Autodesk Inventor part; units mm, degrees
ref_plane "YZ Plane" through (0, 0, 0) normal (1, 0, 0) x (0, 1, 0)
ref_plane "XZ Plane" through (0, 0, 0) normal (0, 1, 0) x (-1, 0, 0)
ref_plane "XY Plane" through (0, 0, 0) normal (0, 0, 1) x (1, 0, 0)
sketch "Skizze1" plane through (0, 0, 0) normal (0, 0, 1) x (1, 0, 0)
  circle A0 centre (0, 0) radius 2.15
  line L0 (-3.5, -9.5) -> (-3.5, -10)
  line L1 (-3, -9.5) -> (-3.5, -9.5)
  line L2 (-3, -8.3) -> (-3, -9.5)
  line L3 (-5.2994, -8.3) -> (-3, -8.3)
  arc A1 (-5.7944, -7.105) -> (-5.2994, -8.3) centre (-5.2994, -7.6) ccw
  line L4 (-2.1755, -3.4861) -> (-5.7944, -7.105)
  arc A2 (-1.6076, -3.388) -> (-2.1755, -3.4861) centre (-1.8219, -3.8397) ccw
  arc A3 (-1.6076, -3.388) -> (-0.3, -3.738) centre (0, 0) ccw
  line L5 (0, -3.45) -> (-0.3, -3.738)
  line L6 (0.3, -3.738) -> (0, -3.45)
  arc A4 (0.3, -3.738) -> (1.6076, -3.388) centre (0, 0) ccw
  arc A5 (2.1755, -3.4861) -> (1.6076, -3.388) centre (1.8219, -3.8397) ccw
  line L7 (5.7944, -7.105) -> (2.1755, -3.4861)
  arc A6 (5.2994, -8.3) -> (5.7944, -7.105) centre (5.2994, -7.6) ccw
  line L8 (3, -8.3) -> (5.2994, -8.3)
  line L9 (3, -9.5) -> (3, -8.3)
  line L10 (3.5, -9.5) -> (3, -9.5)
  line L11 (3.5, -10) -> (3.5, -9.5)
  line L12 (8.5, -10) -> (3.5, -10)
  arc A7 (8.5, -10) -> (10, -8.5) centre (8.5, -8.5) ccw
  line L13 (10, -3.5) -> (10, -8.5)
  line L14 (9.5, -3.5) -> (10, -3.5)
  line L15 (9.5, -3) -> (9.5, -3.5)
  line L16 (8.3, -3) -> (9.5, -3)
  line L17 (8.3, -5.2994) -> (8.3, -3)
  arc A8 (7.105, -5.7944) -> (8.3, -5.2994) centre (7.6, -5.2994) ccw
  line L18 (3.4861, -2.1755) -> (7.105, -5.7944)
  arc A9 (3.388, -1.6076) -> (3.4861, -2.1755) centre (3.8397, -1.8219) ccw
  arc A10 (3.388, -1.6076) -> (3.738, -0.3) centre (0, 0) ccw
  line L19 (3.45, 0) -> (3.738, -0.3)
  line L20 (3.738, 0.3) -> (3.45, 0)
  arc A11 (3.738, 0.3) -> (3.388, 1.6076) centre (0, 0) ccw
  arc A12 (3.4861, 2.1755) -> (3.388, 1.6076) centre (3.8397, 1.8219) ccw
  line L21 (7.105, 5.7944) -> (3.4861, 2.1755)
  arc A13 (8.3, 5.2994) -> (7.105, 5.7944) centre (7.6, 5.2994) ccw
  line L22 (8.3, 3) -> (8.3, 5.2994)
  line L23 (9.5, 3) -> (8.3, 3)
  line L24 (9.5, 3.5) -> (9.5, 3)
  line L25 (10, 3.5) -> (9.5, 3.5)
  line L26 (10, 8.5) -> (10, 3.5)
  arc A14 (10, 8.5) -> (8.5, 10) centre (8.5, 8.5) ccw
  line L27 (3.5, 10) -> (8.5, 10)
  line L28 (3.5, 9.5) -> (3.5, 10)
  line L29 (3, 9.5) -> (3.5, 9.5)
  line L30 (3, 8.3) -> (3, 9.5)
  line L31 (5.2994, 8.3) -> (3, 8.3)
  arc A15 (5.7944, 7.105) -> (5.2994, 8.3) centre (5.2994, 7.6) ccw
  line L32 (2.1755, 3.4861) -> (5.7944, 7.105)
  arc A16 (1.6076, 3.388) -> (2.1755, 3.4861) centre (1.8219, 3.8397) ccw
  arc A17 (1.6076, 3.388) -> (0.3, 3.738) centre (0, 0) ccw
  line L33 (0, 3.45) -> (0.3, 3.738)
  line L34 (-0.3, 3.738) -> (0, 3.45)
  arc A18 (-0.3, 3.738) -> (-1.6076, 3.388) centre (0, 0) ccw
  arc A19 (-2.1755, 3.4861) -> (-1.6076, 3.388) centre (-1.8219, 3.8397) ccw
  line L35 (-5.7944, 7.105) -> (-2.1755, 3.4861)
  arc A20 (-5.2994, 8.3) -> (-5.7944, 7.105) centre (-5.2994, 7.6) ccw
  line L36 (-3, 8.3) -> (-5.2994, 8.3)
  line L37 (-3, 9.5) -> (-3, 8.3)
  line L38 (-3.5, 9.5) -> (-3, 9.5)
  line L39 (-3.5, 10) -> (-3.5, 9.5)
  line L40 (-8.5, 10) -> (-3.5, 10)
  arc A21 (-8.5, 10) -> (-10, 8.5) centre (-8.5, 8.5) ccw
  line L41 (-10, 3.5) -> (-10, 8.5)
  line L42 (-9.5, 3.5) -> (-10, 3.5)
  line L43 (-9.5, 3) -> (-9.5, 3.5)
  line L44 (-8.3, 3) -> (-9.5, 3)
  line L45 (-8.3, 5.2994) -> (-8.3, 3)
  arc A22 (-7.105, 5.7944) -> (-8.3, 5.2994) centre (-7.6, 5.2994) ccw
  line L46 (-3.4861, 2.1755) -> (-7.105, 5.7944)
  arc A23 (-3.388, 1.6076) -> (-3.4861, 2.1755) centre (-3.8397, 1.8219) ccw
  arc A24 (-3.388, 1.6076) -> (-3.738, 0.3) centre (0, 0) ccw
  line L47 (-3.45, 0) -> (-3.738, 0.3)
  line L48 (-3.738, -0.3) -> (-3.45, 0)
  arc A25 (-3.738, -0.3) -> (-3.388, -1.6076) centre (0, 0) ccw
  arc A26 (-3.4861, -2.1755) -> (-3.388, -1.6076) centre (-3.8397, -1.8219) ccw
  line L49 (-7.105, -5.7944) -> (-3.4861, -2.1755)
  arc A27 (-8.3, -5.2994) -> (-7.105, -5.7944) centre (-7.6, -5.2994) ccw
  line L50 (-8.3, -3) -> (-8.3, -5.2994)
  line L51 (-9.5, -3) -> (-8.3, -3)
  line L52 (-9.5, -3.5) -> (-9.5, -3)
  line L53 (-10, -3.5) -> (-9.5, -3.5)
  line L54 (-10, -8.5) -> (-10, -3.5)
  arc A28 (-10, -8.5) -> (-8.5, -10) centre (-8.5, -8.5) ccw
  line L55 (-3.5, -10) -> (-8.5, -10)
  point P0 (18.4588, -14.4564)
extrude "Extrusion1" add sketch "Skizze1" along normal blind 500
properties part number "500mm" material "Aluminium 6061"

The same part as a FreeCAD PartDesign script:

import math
import FreeCAD as App
import Part
import Sketcher

V = App.Vector
Q = App.Units.Quantity

doc = App.newDocument("Part")
body = doc.addObject("PartDesign::Body", "Body")

# Sketch on XY plane
sketch1 = body.newObject("Sketcher::SketchObject", "Sketch")
sketch1.AttachmentSupport = (doc.getObject("XY_Plane"), [""])
sketch1.MapMode = "FlatFace"
sketch1.addGeometry([
    Part.LineSegment(V(-3.5, -10, 0), V(-3.5, -9.5, 0)),  # 0
    Part.LineSegment(V(-3.5, -9.5, 0), V(-3, -9.5, 0)),  # 1
    Part.LineSegment(V(-3, -9.5, 0), V(-3, -8.3, 0)),  # 2
    Part.LineSegment(V(-3, -8.3, 0), V(-5.2994, -8.3, 0)),  # 3
    Part.ArcOfCircle(Part.Circle(V(-5.2994, -7.6, 0), V(0, 0, 1), 0.700036), math.radians(135), math.radians(270)),  # 4
    Part.LineSegment(V(-5.7944, -7.105, 0), V(-2.1755, -3.4861, 0)),  # 5
    Part.ArcOfCircle(Part.Circle(V(-1.8219, -3.8397, 0), V(0, 0, 1), 0.499957), math.radians(64.618937), math.radians(135)),  # 6
    Part.ArcOfCircle(Part.Circle(V(-0.000391, -0.001062, 0), V(0, 0, 1), 3.748929), math.radians(-115.385824), math.radians(-94.583891)),  # 7
    Part.LineSegment(V(-0.3, -3.738, 0), V(0, -3.45, 0)),  # 8
    Part.LineSegment(V(0, -3.45, 0), V(0.3, -3.738, 0)),  # 9
    Part.ArcOfCircle(Part.Circle(V(-0.000193, 0.001116, 0), V(0, 0, 1), 3.751147), math.radians(-85.40989), math.radians(-64.620395)),  # 10
    Part.ArcOfCircle(Part.Circle(V(1.8219, -3.8397, 0), V(0, 0, 1), 0.500066), math.radians(45), math.radians(115.381063)),  # 11
    Part.LineSegment(V(2.1755, -3.4861, 0), V(5.7944, -7.105, 0)),  # 12
    Part.ArcOfCircle(Part.Circle(V(5.2994, -7.6, 0), V(0, 0, 1), 0.7), math.radians(-90), math.radians(45)),  # 13
    Part.LineSegment(V(5.2994, -8.3, 0), V(3, -8.3, 0)),  # 14
    Part.LineSegment(V(3, -8.3, 0), V(3, -9.5, 0)),  # 15
    Part.LineSegment(V(3, -9.5, 0), V(3.5, -9.5, 0)),  # 16
    Part.LineSegment(V(3.5, -9.5, 0), V(3.5, -10, 0)),  # 17
    Part.LineSegment(V(3.5, -10, 0), V(8.5, -10, 0)),  # 18
    Part.ArcOfCircle(Part.Circle(V(8.5, -8.5, 0), V(0, 0, 1), 1.5), math.radians(-90), math.radians(0)),  # 19
    Part.LineSegment(V(10, -8.5, 0), V(10, -3.5, 0)),  # 20
    Part.LineSegment(V(10, -3.5, 0), V(9.5, -3.5, 0)),  # 21
    Part.LineSegment(V(9.5, -3.5, 0), V(9.5, -3, 0)),  # 22
    Part.LineSegment(V(9.5, -3, 0), V(8.3, -3, 0)),  # 23
    Part.LineSegment(V(8.3, -3, 0), V(8.3, -5.2994, 0)),  # 24
    Part.ArcOfCircle(Part.Circle(V(7.6, -5.2994, 0), V(0, 0, 1), 0.700036), math.radians(-135), math.radians(0)),  # 25
    Part.LineSegment(V(7.105, -5.7944, 0), V(3.4861, -2.1755, 0)),  # 26
    Part.ArcOfCircle(Part.Circle(V(3.8397, -1.8219, 0), V(0, 0, 1), 0.499957), math.radians(154.618937), math.radians(225)),  # 27
    Part.ArcOfCircle(Part.Circle(V(0.001062, -0.000391, 0), V(0, 0, 1), 3.748929), math.radians(-25.385824), math.radians(-4.583891)),  # 28
    Part.LineSegment(V(3.738, -0.3, 0), V(3.45, 0, 0)),  # 29
    Part.LineSegment(V(3.45, 0, 0), V(3.738, 0.3, 0)),  # 30
    Part.ArcOfCircle(Part.Circle(V(-0.001116, -0.000193, 0), V(0, 0, 1), 3.751147), math.radians(4.59011), math.radians(25.379605)),  # 31
    Part.ArcOfCircle(Part.Circle(V(3.8397, 1.8219, 0), V(0, 0, 1), 0.500066), math.radians(135), math.radians(205.381063)),  # 32
    Part.LineSegment(V(3.4861, 2.1755, 0), V(7.105, 5.7944, 0)),  # 33
    Part.ArcOfCircle(Part.Circle(V(7.6, 5.2994, 0), V(0, 0, 1), 0.7), math.radians(0), math.radians(135)),  # 34
    Part.LineSegment(V(8.3, 5.2994, 0), V(8.3, 3, 0)),  # 35
    Part.LineSegment(V(8.3, 3, 0), V(9.5, 3, 0)),  # 36
    Part.LineSegment(V(9.5, 3, 0), V(9.5, 3.5, 0)),  # 37
    Part.LineSegment(V(9.5, 3.5, 0), V(10, 3.5, 0)),  # 38
    Part.LineSegment(V(10, 3.5, 0), V(10, 8.5, 0)),  # 39
    Part.ArcOfCircle(Part.Circle(V(8.5, 8.5, 0), V(0, 0, 1), 1.5), math.radians(0), math.radians(90)),  # 40
    Part.LineSegment(V(8.5, 10, 0), V(3.5, 10, 0)),  # 41
    Part.LineSegment(V(3.5, 10, 0), V(3.5, 9.5, 0)),  # 42
    Part.LineSegment(V(3.5, 9.5, 0), V(3, 9.5, 0)),  # 43
    Part.LineSegment(V(3, 9.5, 0), V(3, 8.3, 0)),  # 44
    Part.LineSegment(V(3, 8.3, 0), V(5.2994, 8.3, 0)),  # 45
    Part.ArcOfCircle(Part.Circle(V(5.2994, 7.6, 0), V(0, 0, 1), 0.700036), math.radians(-45), math.radians(90)),  # 46
    Part.LineSegment(V(5.7944, 7.105, 0), V(2.1755, 3.4861, 0)),  # 47
    Part.ArcOfCircle(Part.Circle(V(1.8219, 3.8397, 0), V(0, 0, 1), 0.499957), math.radians(-115.381063), math.radians(-45)),  # 48
    Part.ArcOfCircle(Part.Circle(V(0.000391, 0.001062, 0), V(0, 0, 1), 3.748929), math.radians(64.614176), math.radians(85.416109)),  # 49
    Part.LineSegment(V(0.3, 3.738, 0), V(0, 3.45, 0)),  # 50
    Part.LineSegment(V(0, 3.45, 0), V(-0.3, 3.738, 0)),  # 51
    Part.ArcOfCircle(Part.Circle(V(0.000193, -0.001116, 0), V(0, 0, 1), 3.751147), math.radians(94.59011), math.radians(115.379605)),  # 52
    Part.ArcOfCircle(Part.Circle(V(-1.8219, 3.8397, 0), V(0, 0, 1), 0.500066), math.radians(-135), math.radians(-64.618937)),  # 53
    Part.LineSegment(V(-2.1755, 3.4861, 0), V(-5.7944, 7.105, 0)),  # 54
    Part.ArcOfCircle(Part.Circle(V(-5.2994, 7.6, 0), V(0, 0, 1), 0.7), math.radians(90), math.radians(225)),  # 55
    Part.LineSegment(V(-5.2994, 8.3, 0), V(-3, 8.3, 0)),  # 56
    Part.LineSegment(V(-3, 8.3, 0), V(-3, 9.5, 0)),  # 57
    Part.LineSegment(V(-3, 9.5, 0), V(-3.5, 9.5, 0)),  # 58
    Part.LineSegment(V(-3.5, 9.5, 0), V(-3.5, 10, 0)),  # 59
    Part.LineSegment(V(-3.5, 10, 0), V(-8.5, 10, 0)),  # 60
    Part.ArcOfCircle(Part.Circle(V(-8.5, 8.5, 0), V(0, 0, 1), 1.5), math.radians(90), math.radians(180)),  # 61
    Part.LineSegment(V(-10, 8.5, 0), V(-10, 3.5, 0)),  # 62
    Part.LineSegment(V(-10, 3.5, 0), V(-9.5, 3.5, 0)),  # 63
    Part.LineSegment(V(-9.5, 3.5, 0), V(-9.5, 3, 0)),  # 64
    Part.LineSegment(V(-9.5, 3, 0), V(-8.3, 3, 0)),  # 65
    Part.LineSegment(V(-8.3, 3, 0), V(-8.3, 5.2994, 0)),  # 66
    Part.ArcOfCircle(Part.Circle(V(-7.6, 5.2994, 0), V(0, 0, 1), 0.700036), math.radians(45), math.radians(180)),  # 67
    Part.LineSegment(V(-7.105, 5.7944, 0), V(-3.4861, 2.1755, 0)),  # 68
    Part.ArcOfCircle(Part.Circle(V(-3.8397, 1.8219, 0), V(0, 0, 1), 0.499957), math.radians(-25.381063), math.radians(45)),  # 69
    Part.ArcOfCircle(Part.Circle(V(-0.001062, 0.000391, 0), V(0, 0, 1), 3.748929), math.radians(154.614176), math.radians(175.416109)),  # 70
    Part.LineSegment(V(-3.738, 0.3, 0), V(-3.45, 0, 0)),  # 71
    Part.LineSegment(V(-3.45, 0, 0), V(-3.738, -0.3, 0)),  # 72
    Part.ArcOfCircle(Part.Circle(V(0.001116, 0.000193, 0), V(0, 0, 1), 3.751147), math.radians(-175.40989), math.radians(-154.620395)),  # 73
    Part.ArcOfCircle(Part.Circle(V(-3.8397, -1.8219, 0), V(0, 0, 1), 0.500066), math.radians(-45), math.radians(25.381063)),  # 74
    Part.LineSegment(V(-3.4861, -2.1755, 0), V(-7.105, -5.7944, 0)),  # 75
    Part.ArcOfCircle(Part.Circle(V(-7.6, -5.2994, 0), V(0, 0, 1), 0.7), math.radians(180), math.radians(315)),  # 76
    Part.LineSegment(V(-8.3, -5.2994, 0), V(-8.3, -3, 0)),  # 77
    Part.LineSegment(V(-8.3, -3, 0), V(-9.5, -3, 0)),  # 78
    Part.LineSegment(V(-9.5, -3, 0), V(-9.5, -3.5, 0)),  # 79
    Part.LineSegment(V(-9.5, -3.5, 0), V(-10, -3.5, 0)),  # 80
    Part.LineSegment(V(-10, -3.5, 0), V(-10, -8.5, 0)),  # 81
    Part.ArcOfCircle(Part.Circle(V(-8.5, -8.5, 0), V(0, 0, 1), 1.5), math.radians(180), math.radians(270)),  # 82
    Part.LineSegment(V(-8.5, -10, 0), V(-3.5, -10, 0)),  # 83
    Part.Circle(V(0, 0, 0), V(0, 0, 1), 2.15),  # 84
], False)
sketch1.addConstraint([
    Sketcher.Constraint("Coincident", 0, 2, 1, 1),
    Sketcher.Constraint("Coincident", 1, 2, 2, 1),
    Sketcher.Constraint("Coincident", 2, 2, 3, 1),
    Sketcher.Constraint("Coincident", 3, 2, 4, 2),
    Sketcher.Constraint("Coincident", 4, 1, 5, 1),
    Sketcher.Constraint("Coincident", 5, 2, 6, 2),
    Sketcher.Constraint("Coincident", 6, 1, 7, 1),
    Sketcher.Constraint("Coincident", 7, 2, 8, 1),
    Sketcher.Constraint("Coincident", 8, 2, 9, 1),
    Sketcher.Constraint("Coincident", 9, 2, 10, 1),
    Sketcher.Constraint("Coincident", 10, 2, 11, 2),
    Sketcher.Constraint("Coincident", 11, 1, 12, 1),
    Sketcher.Constraint("Coincident", 12, 2, 13, 2),
    Sketcher.Constraint("Coincident", 13, 1, 14, 1),
    Sketcher.Constraint("Coincident", 14, 2, 15, 1),
    Sketcher.Constraint("Coincident", 15, 2, 16, 1),
    Sketcher.Constraint("Coincident", 16, 2, 17, 1),
    Sketcher.Constraint("Coincident", 17, 2, 18, 1),
    Sketcher.Constraint("Coincident", 18, 2, 19, 1),
    Sketcher.Constraint("Coincident", 19, 2, 20, 1),
    Sketcher.Constraint("Coincident", 20, 2, 21, 1),
    Sketcher.Constraint("Coincident", 21, 2, 22, 1),
    Sketcher.Constraint("Coincident", 22, 2, 23, 1),
    Sketcher.Constraint("Coincident", 23, 2, 24, 1),
    Sketcher.Constraint("Coincident", 24, 2, 25, 2),
    Sketcher.Constraint("Coincident", 25, 1, 26, 1),
    Sketcher.Constraint("Coincident", 26, 2, 27, 2),
    Sketcher.Constraint("Coincident", 27, 1, 28, 1),
    Sketcher.Constraint("Coincident", 28, 2, 29, 1),
    Sketcher.Constraint("Coincident", 29, 2, 30, 1),
    Sketcher.Constraint("Coincident", 30, 2, 31, 1),
    Sketcher.Constraint("Coincident", 31, 2, 32, 2),
    Sketcher.Constraint("Coincident", 32, 1, 33, 1),
    Sketcher.Constraint("Coincident", 33, 2, 34, 2),
    Sketcher.Constraint("Coincident", 34, 1, 35, 1),
    Sketcher.Constraint("Coincident", 35, 2, 36, 1),
    Sketcher.Constraint("Coincident", 36, 2, 37, 1),
    Sketcher.Constraint("Coincident", 37, 2, 38, 1),
    Sketcher.Constraint("Coincident", 38, 2, 39, 1),
    Sketcher.Constraint("Coincident", 39, 2, 40, 1),
    Sketcher.Constraint("Coincident", 40, 2, 41, 1),
    Sketcher.Constraint("Coincident", 41, 2, 42, 1),
    Sketcher.Constraint("Coincident", 42, 2, 43, 1),
    Sketcher.Constraint("Coincident", 43, 2, 44, 1),
    Sketcher.Constraint("Coincident", 44, 2, 45, 1),
    Sketcher.Constraint("Coincident", 45, 2, 46, 2),
    Sketcher.Constraint("Coincident", 46, 1, 47, 1),
    Sketcher.Constraint("Coincident", 47, 2, 48, 2),
    Sketcher.Constraint("Coincident", 48, 1, 49, 1),
    Sketcher.Constraint("Coincident", 49, 2, 50, 1),
    Sketcher.Constraint("Coincident", 50, 2, 51, 1),
    Sketcher.Constraint("Coincident", 51, 2, 52, 1),
    Sketcher.Constraint("Coincident", 52, 2, 53, 2),
    Sketcher.Constraint("Coincident", 53, 1, 54, 1),
    Sketcher.Constraint("Coincident", 54, 2, 55, 2),
    Sketcher.Constraint("Coincident", 55, 1, 56, 1),
    Sketcher.Constraint("Coincident", 56, 2, 57, 1),
    Sketcher.Constraint("Coincident", 57, 2, 58, 1),
    Sketcher.Constraint("Coincident", 58, 2, 59, 1),
    Sketcher.Constraint("Coincident", 59, 2, 60, 1),
    Sketcher.Constraint("Coincident", 60, 2, 61, 1),
    Sketcher.Constraint("Coincident", 61, 2, 62, 1),
    Sketcher.Constraint("Coincident", 62, 2, 63, 1),
    Sketcher.Constraint("Coincident", 63, 2, 64, 1),
    Sketcher.Constraint("Coincident", 64, 2, 65, 1),
    Sketcher.Constraint("Coincident", 65, 2, 66, 1),
    Sketcher.Constraint("Coincident", 66, 2, 67, 2),
    Sketcher.Constraint("Coincident", 67, 1, 68, 1),
    Sketcher.Constraint("Coincident", 68, 2, 69, 2),
    Sketcher.Constraint("Coincident", 69, 1, 70, 1),
    Sketcher.Constraint("Coincident", 70, 2, 71, 1),
    Sketcher.Constraint("Coincident", 71, 2, 72, 1),
    Sketcher.Constraint("Coincident", 72, 2, 73, 1),
    Sketcher.Constraint("Coincident", 73, 2, 74, 2),
    Sketcher.Constraint("Coincident", 74, 1, 75, 1),
    Sketcher.Constraint("Coincident", 75, 2, 76, 2),
    Sketcher.Constraint("Coincident", 76, 1, 77, 1),
    Sketcher.Constraint("Coincident", 77, 2, 78, 1),
    Sketcher.Constraint("Coincident", 78, 2, 79, 1),
    Sketcher.Constraint("Coincident", 79, 2, 80, 1),
    Sketcher.Constraint("Coincident", 80, 2, 81, 1),
    Sketcher.Constraint("Coincident", 81, 2, 82, 1),
    Sketcher.Constraint("Coincident", 82, 2, 83, 1),
    Sketcher.Constraint("Coincident", 83, 2, 0, 1),
    Sketcher.Constraint("Vertical", 0),
    Sketcher.Constraint("Horizontal", 1),
    Sketcher.Constraint("Vertical", 2),
    Sketcher.Constraint("Horizontal", 3),
    Sketcher.Constraint("Horizontal", 14),
    Sketcher.Constraint("Vertical", 15),
    Sketcher.Constraint("Horizontal", 16),
    Sketcher.Constraint("Vertical", 17),
    Sketcher.Constraint("Horizontal", 18),
    Sketcher.Constraint("Vertical", 20),
    Sketcher.Constraint("Horizontal", 21),
    Sketcher.Constraint("Vertical", 22),
    Sketcher.Constraint("Horizontal", 23),
    Sketcher.Constraint("Vertical", 24),
    Sketcher.Constraint("Vertical", 35),
    Sketcher.Constraint("Horizontal", 36),
    Sketcher.Constraint("Vertical", 37),
    Sketcher.Constraint("Horizontal", 38),
    Sketcher.Constraint("Vertical", 39),
    Sketcher.Constraint("Horizontal", 41),
    Sketcher.Constraint("Vertical", 42),
    Sketcher.Constraint("Horizontal", 43),
    Sketcher.Constraint("Vertical", 44),
    Sketcher.Constraint("Horizontal", 45),
    Sketcher.Constraint("Horizontal", 56),
    Sketcher.Constraint("Vertical", 57),
    Sketcher.Constraint("Horizontal", 58),
    Sketcher.Constraint("Vertical", 59),
    Sketcher.Constraint("Horizontal", 60),
    Sketcher.Constraint("Vertical", 62),
    Sketcher.Constraint("Horizontal", 63),
    Sketcher.Constraint("Vertical", 64),
    Sketcher.Constraint("Horizontal", 65),
    Sketcher.Constraint("Vertical", 66),
    Sketcher.Constraint("Vertical", 77),
    Sketcher.Constraint("Horizontal", 78),
    Sketcher.Constraint("Vertical", 79),
    Sketcher.Constraint("Horizontal", 80),
    Sketcher.Constraint("Vertical", 81),
    Sketcher.Constraint("Horizontal", 83),
    Sketcher.Constraint("Coincident", 84, 3, -1, 1),
    Sketcher.Constraint("PointOnObject", 10, 3, -2),
    Sketcher.Constraint("PointOnObject", 31, 3, -1),
    Sketcher.Constraint("PointOnObject", 52, 3, -2),
    Sketcher.Constraint("PointOnObject", 73, 3, -1),
    Sketcher.Constraint("PointOnObject", 8, 2, -2),
    Sketcher.Constraint("PointOnObject", 29, 2, -1),
    Sketcher.Constraint("PointOnObject", 50, 2, -2),
    Sketcher.Constraint("PointOnObject", 71, 2, -1),
    Sketcher.Constraint("Diameter", 84, Q("4.3 mm")),
    Sketcher.Constraint("Radius", 4, Q("0.7 mm")),
    Sketcher.Constraint("Radius", 6, Q("0.5 mm")),
    Sketcher.Constraint("Radius", 11, Q("0.5 mm")),
    Sketcher.Constraint("Radius", 13, Q("0.7 mm")),
    Sketcher.Constraint("Radius", 19, Q("1.5 mm")),
    Sketcher.Constraint("Radius", 25, Q("0.7 mm")),
    Sketcher.Constraint("Radius", 27, Q("0.5 mm")),
    Sketcher.Constraint("Radius", 32, Q("0.5 mm")),
    Sketcher.Constraint("Radius", 34, Q("0.7 mm")),
    Sketcher.Constraint("Radius", 40, Q("1.5 mm")),
    Sketcher.Constraint("Radius", 46, Q("0.7 mm")),
    Sketcher.Constraint("Radius", 48, Q("0.5 mm")),
    Sketcher.Constraint("Radius", 53, Q("0.5 mm")),
    Sketcher.Constraint("Radius", 55, Q("0.7 mm")),
    Sketcher.Constraint("Radius", 61, Q("1.5 mm")),
    Sketcher.Constraint("Radius", 67, Q("0.7 mm")),
    Sketcher.Constraint("Radius", 69, Q("0.5 mm")),
    Sketcher.Constraint("Radius", 74, Q("0.5 mm")),
    Sketcher.Constraint("Radius", 76, Q("0.7 mm")),
    Sketcher.Constraint("Radius", 82, Q("1.5 mm")),
    Sketcher.Constraint("DistanceX", 18, 1, 18, 2, Q("5 mm")),
    Sketcher.Constraint("DistanceX", 41, 2, 41, 1, Q("5 mm")),
    Sketcher.Constraint("DistanceX", 60, 2, 60, 1, Q("5 mm")),
    Sketcher.Constraint("DistanceX", 83, 1, 83, 2, Q("5 mm")),
    Sketcher.Constraint("DistanceY", 20, 1, 20, 2, Q("5 mm")),
    Sketcher.Constraint("DistanceY", 39, 1, 39, 2, Q("5 mm")),
    Sketcher.Constraint("DistanceY", 62, 2, 62, 1, Q("5 mm")),
    Sketcher.Constraint("DistanceY", 81, 2, 81, 1, Q("5 mm")),
    Sketcher.Constraint("DistanceX", 1, 1, 1, 2, Q("0.5 mm")),
    Sketcher.Constraint("DistanceX", 16, 1, 16, 2, Q("0.5 mm")),
    Sketcher.Constraint("DistanceX", 21, 2, 21, 1, Q("0.5 mm")),
    Sketcher.Constraint("DistanceX", 23, 2, 23, 1, Q("1.2 mm")),
    Sketcher.Constraint("DistanceX", 36, 1, 36, 2, Q("1.2 mm")),
    Sketcher.Constraint("DistanceX", 38, 1, 38, 2, Q("0.5 mm")),
    Sketcher.Constraint("DistanceX", 43, 2, 43, 1, Q("0.5 mm")),
    Sketcher.Constraint("DistanceX", 58, 2, 58, 1, Q("0.5 mm")),
    Sketcher.Constraint("DistanceX", 63, 1, 63, 2, Q("0.5 mm")),
    Sketcher.Constraint("DistanceX", 65, 1, 65, 2, Q("1.2 mm")),
    Sketcher.Constraint("DistanceX", 78, 2, 78, 1, Q("1.2 mm")),
    Sketcher.Constraint("DistanceX", 80, 2, 80, 1, Q("0.5 mm")),
    Sketcher.Constraint("DistanceY", 0, 1, 0, 2, Q("0.5 mm")),
    Sketcher.Constraint("DistanceY", 2, 1, 2, 2, Q("1.2 mm")),
    Sketcher.Constraint("DistanceY", 15, 2, 15, 1, Q("1.2 mm")),
    Sketcher.Constraint("DistanceY", 17, 2, 17, 1, Q("0.5 mm")),
    Sketcher.Constraint("DistanceY", 22, 1, 22, 2, Q("0.5 mm")),
    Sketcher.Constraint("DistanceY", 37, 1, 37, 2, Q("0.5 mm")),
    Sketcher.Constraint("DistanceY", 42, 2, 42, 1, Q("0.5 mm")),
    Sketcher.Constraint("DistanceY", 44, 2, 44, 1, Q("1.2 mm")),
    Sketcher.Constraint("DistanceY", 57, 1, 57, 2, Q("1.2 mm")),
    Sketcher.Constraint("DistanceY", 59, 1, 59, 2, Q("0.5 mm")),
    Sketcher.Constraint("DistanceY", 64, 2, 64, 1, Q("0.5 mm")),
    Sketcher.Constraint("DistanceY", 79, 2, 79, 1, Q("0.5 mm")),
    Sketcher.Constraint("DistanceX", 1, 2, -1, 1, Q("3 mm")),
    Sketcher.Constraint("DistanceX", -1, 1, 14, 2, Q("3 mm")),
    Sketcher.Constraint("DistanceY", 17, 2, -1, 1, Q("10 mm")),
    Sketcher.Constraint("DistanceX", -1, 1, 19, 2, Q("10 mm")),
    Sketcher.Constraint("DistanceY", 22, 2, -1, 1, Q("3 mm")),
    Sketcher.Constraint("DistanceY", -1, 1, 35, 2, Q("3 mm")),
    Sketcher.Constraint("DistanceX", -1, 1, 38, 2, Q("10 mm")),
    Sketcher.Constraint("DistanceY", -1, 1, 40, 2, Q("10 mm")),
    Sketcher.Constraint("DistanceX", -1, 1, 43, 2, Q("3 mm")),
    Sketcher.Constraint("DistanceX", 56, 2, -1, 1, Q("3 mm")),
    Sketcher.Constraint("DistanceY", -1, 1, 59, 2, Q("10 mm")),
    Sketcher.Constraint("DistanceX", 61, 2, -1, 1, Q("10 mm")),
    Sketcher.Constraint("DistanceY", -1, 1, 64, 2, Q("3 mm")),
    Sketcher.Constraint("DistanceY", 77, 2, -1, 1, Q("3 mm")),
    Sketcher.Constraint("DistanceX", 80, 2, -1, 1, Q("10 mm")),
    Sketcher.Constraint("DistanceY", 82, 2, -1, 1, Q("10 mm")),
    Sketcher.Constraint("Radius", 7, Q("3.749 mm")),
    Sketcher.Constraint("Radius", 28, Q("3.749 mm")),
    Sketcher.Constraint("Radius", 49, Q("3.749 mm")),
    Sketcher.Constraint("Radius", 70, Q("3.749 mm")),
    Sketcher.Constraint("DistanceX", 7, 2, -1, 1, Q("0.3 mm")),
    Sketcher.Constraint("DistanceX", -1, 1, 9, 2, Q("0.3 mm")),
    Sketcher.Constraint("DistanceY", 28, 2, -1, 1, Q("0.3 mm")),
    Sketcher.Constraint("DistanceY", -1, 1, 30, 2, Q("0.3 mm")),
    Sketcher.Constraint("DistanceX", -1, 1, 49, 2, Q("0.3 mm")),
    Sketcher.Constraint("DistanceX", 51, 2, -1, 1, Q("0.3 mm")),
    Sketcher.Constraint("DistanceY", -1, 1, 70, 2, Q("0.3 mm")),
    Sketcher.Constraint("DistanceY", 72, 2, -1, 1, Q("0.3 mm")),
    Sketcher.Constraint("Radius", 10, Q("3.7511 mm")),
    Sketcher.Constraint("Radius", 31, Q("3.7511 mm")),
    Sketcher.Constraint("Radius", 52, Q("3.7511 mm")),
    Sketcher.Constraint("Radius", 73, Q("3.7511 mm")),
    Sketcher.Constraint("DistanceY", 8, 2, -1, 1, Q("3.45 mm")),
    Sketcher.Constraint("DistanceX", -1, 1, 29, 2, Q("3.45 mm")),
    Sketcher.Constraint("DistanceY", -1, 1, 50, 2, Q("3.45 mm")),
    Sketcher.Constraint("DistanceX", 71, 2, -1, 1, Q("3.45 mm")),
    Sketcher.Constraint("Distance", 5, Q("5.118 mm")),
    Sketcher.Constraint("Distance", 12, Q("5.118 mm")),
    Sketcher.Constraint("Distance", 26, Q("5.118 mm")),
    Sketcher.Constraint("Distance", 33, Q("5.118 mm")),
    Sketcher.Constraint("Distance", 47, Q("5.118 mm")),
    Sketcher.Constraint("Distance", 54, Q("5.118 mm")),
    Sketcher.Constraint("Distance", 68, Q("5.118 mm")),
    Sketcher.Constraint("Distance", 75, Q("5.118 mm")),
    Sketcher.Constraint("DistanceX", 3, 2, 3, 1, Q("2.2994 mm")),
    Sketcher.Constraint("DistanceX", 14, 2, 14, 1, Q("2.2994 mm")),
    Sketcher.Constraint("DistanceX", 45, 1, 45, 2, Q("2.2994 mm")),
    Sketcher.Constraint("DistanceX", 56, 1, 56, 2, Q("2.2994 mm")),
    Sketcher.Constraint("DistanceY", 24, 2, 24, 1, Q("2.2994 mm")),
    Sketcher.Constraint("DistanceY", 35, 2, 35, 1, Q("2.2994 mm")),
    Sketcher.Constraint("DistanceY", 66, 1, 66, 2, Q("2.2994 mm")),
    Sketcher.Constraint("DistanceY", 77, 1, 77, 2, Q("2.2994 mm")),
    Sketcher.Constraint("DistanceX", 6, 3, -1, 1, Q("1.822 mm")),
    Sketcher.Constraint("DistanceY", 7, 3, -1, 1, Q("0.001 mm")),
    Sketcher.Constraint("DistanceY", -1, 1, 10, 3, Q("0.001 mm")),
    Sketcher.Constraint("DistanceX", -1, 1, 11, 3, Q("1.822 mm")),
    Sketcher.Constraint("DistanceY", 27, 3, -1, 1, Q("1.822 mm")),
    Sketcher.Constraint("DistanceX", -1, 1, 28, 3, Q("0.001 mm")),
    Sketcher.Constraint("DistanceX", 31, 3, -1, 1, Q("0.001 mm")),
    Sketcher.Constraint("DistanceY", -1, 1, 32, 3, Q("1.822 mm")),
    Sketcher.Constraint("DistanceX", -1, 1, 48, 3, Q("1.822 mm")),
    Sketcher.Constraint("DistanceY", -1, 1, 49, 3, Q("0.001 mm")),
    Sketcher.Constraint("DistanceY", 52, 3, -1, 1, Q("0.001 mm")),
    Sketcher.Constraint("DistanceX", 53, 3, -1, 1, Q("1.822 mm")),
    Sketcher.Constraint("DistanceY", -1, 1, 69, 3, Q("1.822 mm")),
    Sketcher.Constraint("DistanceX", 70, 3, -1, 1, Q("0.001 mm")),
    Sketcher.Constraint("DistanceX", -1, 1, 73, 3, Q("0.001 mm")),
    Sketcher.Constraint("DistanceY", 74, 3, -1, 1, Q("1.822 mm")),
    Sketcher.Constraint("DistanceY", 4, 1, -1, 1, Q("7.105 mm")),
    Sketcher.Constraint("DistanceY", 5, 2, -1, 1, Q("3.486 mm")),
    Sketcher.Constraint("DistanceY", 6, 1, -1, 1, Q("3.388 mm")),
    Sketcher.Constraint("DistanceY", 7, 2, -1, 1, Q("3.738 mm")),
    Sketcher.Constraint("DistanceY", 10, 2, -1, 1, Q("3.388 mm")),
    Sketcher.Constraint("DistanceY", 11, 1, -1, 1, Q("3.486 mm")),
    Sketcher.Constraint("DistanceY", 12, 2, -1, 1, Q("7.105 mm")),
    Sketcher.Constraint("DistanceX", -1, 1, 25, 1, Q("7.105 mm")),
    Sketcher.Constraint("DistanceX", -1, 1, 26, 2, Q("3.486 mm")),
    Sketcher.Constraint("DistanceX", -1, 1, 27, 1, Q("3.388 mm")),
    Sketcher.Constraint("DistanceX", -1, 1, 28, 2, Q("3.738 mm")),
    Sketcher.Constraint("DistanceX", -1, 1, 31, 2, Q("3.388 mm")),
    Sketcher.Constraint("DistanceX", -1, 1, 32, 1, Q("3.486 mm")),
    Sketcher.Constraint("DistanceX", -1, 1, 33, 2, Q("7.105 mm")),
    Sketcher.Constraint("DistanceY", -1, 1, 46, 1, Q("7.105 mm")),
    Sketcher.Constraint("DistanceY", -1, 1, 47, 2, Q("3.486 mm")),
    Sketcher.Constraint("DistanceY", -1, 1, 48, 1, Q("3.388 mm")),
    Sketcher.Constraint("DistanceY", -1, 1, 49, 2, Q("3.738 mm")),
    Sketcher.Constraint("DistanceY", -1, 1, 52, 2, Q("3.388 mm")),
    Sketcher.Constraint("DistanceY", -1, 1, 53, 1, Q("3.486 mm")),
    Sketcher.Constraint("DistanceY", -1, 1, 54, 2, Q("7.105 mm")),
    Sketcher.Constraint("DistanceX", 67, 1, -1, 1, Q("7.105 mm")),
    Sketcher.Constraint("DistanceX", 68, 2, -1, 1, Q("3.486 mm")),
    Sketcher.Constraint("DistanceX", 69, 1, -1, 1, Q("3.388 mm")),
    Sketcher.Constraint("DistanceX", 70, 2, -1, 1, Q("3.738 mm")),
    Sketcher.Constraint("DistanceX", 73, 2, -1, 1, Q("3.388 mm")),
    Sketcher.Constraint("DistanceX", 74, 1, -1, 1, Q("3.486 mm")),
    Sketcher.Constraint("DistanceX", 75, 2, -1, 1, Q("7.105 mm")),
])
pad1 = body.newObject("PartDesign::Pad", "Pad")
pad1.Profile = sketch1
pad1.Length = 500

doc.recompute()
